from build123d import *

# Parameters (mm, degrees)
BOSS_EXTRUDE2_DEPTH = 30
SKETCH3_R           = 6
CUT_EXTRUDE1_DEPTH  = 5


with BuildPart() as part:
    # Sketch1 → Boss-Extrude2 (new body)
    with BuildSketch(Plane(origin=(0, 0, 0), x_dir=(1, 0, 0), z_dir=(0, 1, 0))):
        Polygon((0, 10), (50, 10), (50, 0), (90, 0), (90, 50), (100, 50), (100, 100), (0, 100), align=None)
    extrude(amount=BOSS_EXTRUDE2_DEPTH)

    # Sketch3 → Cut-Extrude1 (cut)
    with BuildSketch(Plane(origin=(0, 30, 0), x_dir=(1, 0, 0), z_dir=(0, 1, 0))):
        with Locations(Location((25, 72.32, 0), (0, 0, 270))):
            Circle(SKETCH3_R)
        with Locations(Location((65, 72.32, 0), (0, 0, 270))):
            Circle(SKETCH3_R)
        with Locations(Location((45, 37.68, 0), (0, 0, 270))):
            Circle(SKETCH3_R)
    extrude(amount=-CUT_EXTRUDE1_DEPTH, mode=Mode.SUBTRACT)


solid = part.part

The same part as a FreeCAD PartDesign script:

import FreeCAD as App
import Part
import Sketcher
from FreeCAD import Vector
Q = App.Units.Quantity


def add_polygon(sketch, points):
    """Adds a closed chain of lines whose ends are joined by coincident constraints."""
    first, n = sketch.GeometryCount, len(points)
    for a, b in zip(points, points[1:] + points[:1]):
        sketch.addGeometry(Part.LineSegment(App.Vector(*a, 0), App.Vector(*b, 0)), False)
    for i in range(n):
        sketch.addConstraint(Sketcher.Constraint("Coincident", first + i, 2, first + (i + 1) % n, 1))

doc = App.newDocument("Part")
body = doc.addObject("PartDesign::Body", "Body")

# Sketch on XZ plane
sketch1 = body.newObject("Sketcher::SketchObject", "Sketch")
sketch1.AttachmentSupport = (doc.getObject("XZ_Plane"), [""])
sketch1.MapMode = "FlatFace"
add_polygon(sketch1, [(0, -10), (50, -10), (50, 0), (90, 0), (90, -50), (100, -50), (100, -100), (0, -100)])  # lines 0-7
sketch1.addConstraint([
    Sketcher.Constraint("Horizontal", 0),
    Sketcher.Constraint("Vertical", 1),
    Sketcher.Constraint("Horizontal", 2),
    Sketcher.Constraint("Vertical", 3),
    Sketcher.Constraint("Horizontal", 4),
    Sketcher.Constraint("Vertical", 5),
    Sketcher.Constraint("Horizontal", 6),
    Sketcher.Constraint("Vertical", 7),
    Sketcher.Constraint("PointOnObject", 1, 2, -1),
    Sketcher.Constraint("PointOnObject", 6, 2, -2),
    Sketcher.Constraint("Equal", 4, 1),
    Sketcher.Constraint("Equal", 0, 3),
    Sketcher.Constraint("Equal", 3, 5),
    Sketcher.Constraint("DistanceX", 0, 1, 0, 2, Q("50 mm")),
    Sketcher.Constraint("DistanceX", 2, 1, 2, 2, Q("40 mm")),
    Sketcher.Constraint("DistanceX", 4, 1, 4, 2, Q("10 mm")),
])
pad1 = body.newObject("PartDesign::Pad", "Pad")
pad1.Profile = sketch1
pad1.Length = 30
pad1.Reversed = True

# Sketch on XZ plane
sketch2 = body.newObject("Sketcher::SketchObject", "Sketch001")
sketch2.AttachmentSupport = (doc.getObject("XZ_Plane"), [""])
sketch2.MapMode = "FlatFace"
sketch2.AttachmentOffset = App.Placement(Vector(0, 0, -30), App.Rotation())
sketch2.addGeometry([
    Part.Circle(Vector(25, -72, 0), Vector(0, 0, 1), 6),
    Part.Circle(Vector(65, -72, 0), Vector(0, 0, 1), 6),
    Part.Circle(Vector(45, -38, 0), Vector(0, 0, 1), 6),
], False)
sketch2.addConstraint([
    Sketcher.Constraint("Equal", 0, 1),
    Sketcher.Constraint("Equal", 1, 2),
    Sketcher.Constraint("Horizontal", 0, 3, 1, 3),
    Sketcher.Constraint("Diameter", 0, Q("12 mm")),
    Sketcher.Constraint("DistanceX", -1, 1, 0, 3, Q("25 mm")),
    Sketcher.Constraint("DistanceX", -1, 1, 1, 3, Q("65 mm")),
    Sketcher.Constraint("DistanceX", -1, 1, 2, 3, Q("45 mm")),
    Sketcher.Constraint("DistanceY", 0, 3, -1, 1, Q("72.32 mm")),
    Sketcher.Constraint("DistanceY", 2, 3, -1, 1, Q("37.68 mm")),
])
pocket1 = body.newObject("PartDesign::Pocket", "Pocket")
pocket1.Profile = sketch2
pocket1.Length = 5
pocket1.Reversed = True

doc.recompute()
